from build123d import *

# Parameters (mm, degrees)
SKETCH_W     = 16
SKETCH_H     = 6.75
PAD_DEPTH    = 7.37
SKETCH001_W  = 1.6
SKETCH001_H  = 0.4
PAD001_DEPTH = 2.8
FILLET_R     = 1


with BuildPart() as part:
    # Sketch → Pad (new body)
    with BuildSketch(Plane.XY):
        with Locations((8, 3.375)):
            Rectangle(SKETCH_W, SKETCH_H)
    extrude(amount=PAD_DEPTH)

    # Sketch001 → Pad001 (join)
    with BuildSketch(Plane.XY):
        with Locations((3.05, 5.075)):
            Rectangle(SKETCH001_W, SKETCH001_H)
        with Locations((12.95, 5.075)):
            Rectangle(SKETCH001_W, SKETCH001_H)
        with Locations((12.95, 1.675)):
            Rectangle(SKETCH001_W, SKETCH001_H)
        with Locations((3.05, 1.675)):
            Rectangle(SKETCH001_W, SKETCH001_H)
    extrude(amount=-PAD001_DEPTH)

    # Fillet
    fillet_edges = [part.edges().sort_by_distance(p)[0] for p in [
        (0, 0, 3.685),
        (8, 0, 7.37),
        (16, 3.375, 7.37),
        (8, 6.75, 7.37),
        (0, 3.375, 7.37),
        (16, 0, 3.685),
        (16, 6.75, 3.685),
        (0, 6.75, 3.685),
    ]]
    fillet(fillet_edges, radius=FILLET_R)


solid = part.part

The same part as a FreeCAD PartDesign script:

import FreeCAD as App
import Part
import Sketcher
Q = App.Units.Quantity


def edges_at(feature, points):
    """Names of the edges that pass closest to the given points."""
    edges = feature.Shape.Edges
    near = lambda p: min(range(len(edges)), key=lambda i: edges[i].distToShape(Part.Vertex(*p))[0])
    return sorted({f"Edge{near(p) + 1}" for p in points})

doc = App.newDocument("Part")
body = doc.addObject("PartDesign::Body", "Body")

# Sketch on XY plane
sketch1 = body.newObject("Sketcher::SketchObject", "Sketch")
sketch1.AttachmentSupport = (doc.getObject("XY_Plane"), [""])
sketch1.MapMode = "FlatFace"
sketch1.addGeometry(Part.LineSegment(App.Vector(0, 7, 0), App.Vector(0, 0, 0)), False)
sketch1.addGeometry(Part.LineSegment(App.Vector(0, 0, 0), App.Vector(16, 0, 0)), False)
sketch1.addGeometry(Part.LineSegment(App.Vector(16, 0, 0), App.Vector(16, 7, 0)), False)
sketch1.addGeometry(Part.LineSegment(App.Vector(16, 7, 0), App.Vector(0, 7, 0)), False)
sketch1.addConstraint(Sketcher.Constraint("Coincident", 0, 2, 1, 1))
sketch1.addConstraint(Sketcher.Constraint("Coincident", 1, 2, 2, 1))
sketch1.addConstraint(Sketcher.Constraint("Coincident", 2, 2, 3, 1))
sketch1.addConstraint(Sketcher.Constraint("Coincident", 3, 2, 0, 1))
sketch1.addConstraint(Sketcher.Constraint("Vertical", 0))
sketch1.addConstraint(Sketcher.Constraint("Horizontal", 1))
sketch1.addConstraint(Sketcher.Constraint("Vertical", 2))
sketch1.addConstraint(Sketcher.Constraint("Horizontal", 3))
sketch1.addConstraint(Sketcher.Constraint("Coincident", 0, 2, -1, 1))
sketch1.addConstraint(Sketcher.Constraint("DistanceX", 1, 1, 1, 2, Q("16 mm")))
sketch1.addConstraint(Sketcher.Constraint("DistanceY", 0, 2, 0, 1, Q("6.75 mm")))
pad1 = body.newObject("PartDesign::Pad", "Pad")
pad1.Profile = sketch1
pad1.Length = 7.37

# Sketch on XY plane
sketch2 = body.newObject("Sketcher::SketchObject", "Sketch001")
sketch2.AttachmentSupport = (doc.getObject("XY_Plane"), [""])
sketch2.MapMode = "FlatFace"
sketch2.addGeometry(Part.LineSegment(App.Vector(2.25, 5.28, 0), App.Vector(2.25, 4.88, 0)), False)
sketch2.addGeometry(Part.LineSegment(App.Vector(2.25, 4.88, 0), App.Vector(3.85, 4.88, 0)), False)
sketch2.addGeometry(Part.LineSegment(App.Vector(3.85, 4.88, 0), App.Vector(3.85, 5.28, 0)), False)
sketch2.addGeometry(Part.LineSegment(App.Vector(3.85, 5.28, 0), App.Vector(2.25, 5.28, 0)), False)
sketch2.addGeometry(Part.LineSegment(App.Vector(12.15, 5.28, 0), App.Vector(12.15, 4.88, 0)), False)
sketch2.addGeometry(Part.LineSegment(App.Vector(12.15, 4.88, 0), App.Vector(13.75, 4.88, 0)), False)
sketch2.addGeometry(Part.LineSegment(App.Vector(13.75, 4.88, 0), App.Vector(13.75, 5.28, 0)), False)
sketch2.addGeometry(Part.LineSegment(App.Vector(13.75, 5.28, 0), App.Vector(12.15, 5.28, 0)), False)
sketch2.addGeometry(Part.LineSegment(App.Vector(12.15, 1.88, 0), App.Vector(12.15, 1.48, 0)), False)
sketch2.addGeometry(Part.LineSegment(App.Vector(12.15, 1.48, 0), App.Vector(13.75, 1.48, 0)), False)
sketch2.addGeometry(Part.LineSegment(App.Vector(13.75, 1.48, 0), App.Vector(13.75, 1.88, 0)), False)
sketch2.addGeometry(Part.LineSegment(App.Vector(13.75, 1.88, 0), App.Vector(12.15, 1.88, 0)), False)
sketch2.addGeometry(Part.LineSegment(App.Vector(2.25, 1.88, 0), App.Vector(2.25, 1.48, 0)), False)
sketch2.addGeometry(Part.LineSegment(App.Vector(2.25, 1.48, 0), App.Vector(3.85, 1.48, 0)), False)
sketch2.addGeometry(Part.LineSegment(App.Vector(3.85, 1.48, 0), App.Vector(3.85, 1.88, 0)), False)
sketch2.addGeometry(Part.LineSegment(App.Vector(3.85, 1.88, 0), App.Vector(2.25, 1.88, 0)), False)
sketch2.addConstraint(Sketcher.Constraint("Coincident", 0, 2, 1, 1))
sketch2.addConstraint(Sketcher.Constraint("Coincident", 1, 2, 2, 1))
sketch2.addConstraint(Sketcher.Constraint("Coincident", 2, 2, 3, 1))
sketch2.addConstraint(Sketcher.Constraint("Coincident", 3, 2, 0, 1))
sketch2.addConstraint(Sketcher.Constraint("Coincident", 4, 2, 5, 1))
sketch2.addConstraint(Sketcher.Constraint("Coincident", 5, 2, 6, 1))
sketch2.addConstraint(Sketcher.Constraint("Coincident", 6, 2, 7, 1))
sketch2.addConstraint(Sketcher.Constraint("Coincident", 7, 2, 4, 1))
sketch2.addConstraint(Sketcher.Constraint("Coincident", 8, 2, 9, 1))
sketch2.addConstraint(Sketcher.Constraint("Coincident", 9, 2, 10, 1))
sketch2.addConstraint(Sketcher.Constraint("Coincident", 10, 2, 11, 1))
sketch2.addConstraint(Sketcher.Constraint("Coincident", 11, 2, 8, 1))
sketch2.addConstraint(Sketcher.Constraint("Coincident", 12, 2, 13, 1))
sketch2.addConstraint(Sketcher.Constraint("Coincident", 13, 2, 14, 1))
sketch2.addConstraint(Sketcher.Constraint("Coincident", 14, 2, 15, 1))
sketch2.addConstraint(Sketcher.Constraint("Coincident", 15, 2, 12, 1))
sketch2.addConstraint(Sketcher.Constraint("Vertical", 0))
sketch2.addConstraint(Sketcher.Constraint("Horizontal", 1))
sketch2.addConstraint(Sketcher.Constraint("Vertical", 2))
sketch2.addConstraint(Sketcher.Constraint("Horizontal", 3))
sketch2.addConstraint(Sketcher.Constraint("Vertical", 4))
sketch2.addConstraint(Sketcher.Constraint("Horizontal", 5))
sketch2.addConstraint(Sketcher.Constraint("Vertical", 6))
sketch2.addConstraint(Sketcher.Constraint("Horizontal", 7))
sketch2.addConstraint(Sketcher.Constraint("Vertical", 8))
sketch2.addConstraint(Sketcher.Constraint("Horizontal", 9))
sketch2.addConstraint(Sketcher.Constraint("Vertical", 10))
sketch2.addConstraint(Sketcher.Constraint("Horizontal", 11))
sketch2.addConstraint(Sketcher.Constraint("Vertical", 12))
sketch2.addConstraint(Sketcher.Constraint("Horizontal", 13))
sketch2.addConstraint(Sketcher.Constraint("Vertical", 14))
sketch2.addConstraint(Sketcher.Constraint("Horizontal", 15))
sketch2.addConstraint(Sketcher.Constraint("Horizontal", 1, 2, 4, 2))
sketch2.addConstraint(Sketcher.Constraint("Horizontal", 3, 2, 6, 2))
sketch2.addConstraint(Sketcher.Constraint("Horizontal", 9, 2, 12, 2))
sketch2.addConstraint(Sketcher.Constraint("Horizontal", 11, 2, 14, 2))
sketch2.addConstraint(Sketcher.Constraint("Vertical", 7, 2, 8, 2))
sketch2.addConstraint(Sketcher.Constraint("Vertical", 6, 2, 9, 2))
sketch2.addConstraint(Sketcher.Constraint("Vertical", 3, 2, 12, 2))
sketch2.addConstraint(Sketcher.Constraint("Vertical", 2, 2, 13, 2))
sketch2.addConstraint(Sketcher.Constraint("Equal", 3, 5))
sketch2.addConstraint(Sketcher.Constraint("Equal", 6, 8))
sketch2.addConstraint(Sketcher.Constraint("DistanceX", 1, 1, 1, 2, Q("1.6 mm")))
sketch2.addConstraint(Sketcher.Constraint("DistanceY", 0, 2, 0, 1, Q("0.4 mm")))
sketch2.addConstraint(Sketcher.Constraint("DistanceY", 10, 2, 5, 2, Q("3 mm")))
sketch2.addConstraint(Sketcher.Constraint("DistanceX", 1, 2, 4, 2, Q("8.3 mm")))
sketch2.addConstraint(Sketcher.Constraint("DistanceX", -1, 1, 0, 2, Q("2.25 mm")))
sketch2.addConstraint(Sketcher.Constraint("DistanceY", -1, 1, 0, 2, Q("4.875 mm")))
pad2 = body.newObject("PartDesign::Pad", "Pad001")
pad2.Profile = sketch2
pad2.Length = 2.8
pad2.Reversed = True
doc.recompute()

fillet = body.newObject("PartDesign::Fillet", "Fillet")
fillet.Base = (pad2, edges_at(pad2, [
    (0, 0, 3.685),
    (8, 0, 7.37),
    (16, 3.375, 7.37),
    (8, 6.75, 7.37),
    (0, 3.375, 7.37),
    (16, 0, 3.685),
    (16, 6.75, 3.685),
    (0, 6.75, 3.685),
]))
fillet.Radius = 1

doc.recompute()
